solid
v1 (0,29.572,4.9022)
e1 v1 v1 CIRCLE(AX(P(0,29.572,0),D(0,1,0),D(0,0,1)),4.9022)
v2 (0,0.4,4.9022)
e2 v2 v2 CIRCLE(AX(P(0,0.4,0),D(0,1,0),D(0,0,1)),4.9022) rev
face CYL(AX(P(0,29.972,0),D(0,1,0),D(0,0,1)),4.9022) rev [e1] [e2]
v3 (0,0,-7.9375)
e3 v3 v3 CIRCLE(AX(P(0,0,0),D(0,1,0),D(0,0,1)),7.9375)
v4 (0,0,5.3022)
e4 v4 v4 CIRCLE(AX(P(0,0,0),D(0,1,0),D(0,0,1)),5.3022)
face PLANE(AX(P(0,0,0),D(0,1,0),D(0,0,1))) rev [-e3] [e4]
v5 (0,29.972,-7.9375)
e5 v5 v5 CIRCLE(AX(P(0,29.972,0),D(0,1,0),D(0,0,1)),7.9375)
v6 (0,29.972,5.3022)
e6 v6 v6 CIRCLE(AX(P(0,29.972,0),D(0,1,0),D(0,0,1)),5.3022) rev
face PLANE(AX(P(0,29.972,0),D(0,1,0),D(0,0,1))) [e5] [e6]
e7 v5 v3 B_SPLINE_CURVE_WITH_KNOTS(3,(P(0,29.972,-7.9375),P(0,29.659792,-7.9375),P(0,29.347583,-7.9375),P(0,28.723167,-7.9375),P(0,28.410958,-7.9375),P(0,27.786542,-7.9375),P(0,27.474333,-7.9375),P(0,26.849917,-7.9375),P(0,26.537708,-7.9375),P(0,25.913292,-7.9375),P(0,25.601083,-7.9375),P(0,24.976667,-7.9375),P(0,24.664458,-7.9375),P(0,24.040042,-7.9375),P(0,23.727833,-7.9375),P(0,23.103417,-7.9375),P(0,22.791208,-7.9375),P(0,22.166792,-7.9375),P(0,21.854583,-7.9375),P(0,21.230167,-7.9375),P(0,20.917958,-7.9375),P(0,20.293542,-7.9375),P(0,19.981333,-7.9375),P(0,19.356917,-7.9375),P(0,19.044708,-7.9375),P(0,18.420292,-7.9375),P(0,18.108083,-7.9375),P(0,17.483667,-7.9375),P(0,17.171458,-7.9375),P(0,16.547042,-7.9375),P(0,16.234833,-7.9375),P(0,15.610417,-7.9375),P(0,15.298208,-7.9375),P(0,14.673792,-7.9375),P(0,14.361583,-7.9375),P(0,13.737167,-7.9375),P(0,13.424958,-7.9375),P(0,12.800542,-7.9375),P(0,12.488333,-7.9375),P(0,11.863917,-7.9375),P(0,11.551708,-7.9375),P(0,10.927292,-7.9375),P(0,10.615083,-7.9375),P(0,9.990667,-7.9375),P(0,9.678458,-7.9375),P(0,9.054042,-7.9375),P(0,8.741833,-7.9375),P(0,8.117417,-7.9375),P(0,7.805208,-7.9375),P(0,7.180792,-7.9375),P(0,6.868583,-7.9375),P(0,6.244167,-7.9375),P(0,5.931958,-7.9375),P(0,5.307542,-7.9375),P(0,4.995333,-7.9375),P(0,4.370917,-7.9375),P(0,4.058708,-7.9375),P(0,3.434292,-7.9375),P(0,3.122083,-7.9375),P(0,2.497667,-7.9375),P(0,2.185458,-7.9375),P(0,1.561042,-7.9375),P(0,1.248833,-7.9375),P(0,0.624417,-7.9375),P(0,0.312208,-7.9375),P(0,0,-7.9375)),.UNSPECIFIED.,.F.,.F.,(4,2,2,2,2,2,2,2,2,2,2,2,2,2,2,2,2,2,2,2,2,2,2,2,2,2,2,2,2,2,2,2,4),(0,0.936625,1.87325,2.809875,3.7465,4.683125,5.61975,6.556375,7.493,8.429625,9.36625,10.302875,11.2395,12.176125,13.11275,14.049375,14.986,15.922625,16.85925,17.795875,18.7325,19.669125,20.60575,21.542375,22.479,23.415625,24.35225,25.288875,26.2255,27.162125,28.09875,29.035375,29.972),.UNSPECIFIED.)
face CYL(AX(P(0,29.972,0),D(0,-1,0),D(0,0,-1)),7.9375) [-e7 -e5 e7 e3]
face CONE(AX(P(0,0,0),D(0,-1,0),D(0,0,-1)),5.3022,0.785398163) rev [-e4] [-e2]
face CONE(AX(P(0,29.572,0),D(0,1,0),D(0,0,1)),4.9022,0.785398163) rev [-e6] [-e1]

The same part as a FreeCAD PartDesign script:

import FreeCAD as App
import Part
import Sketcher

V = App.Vector
Q = App.Units.Quantity


def edges_at(feature, points):
    """Names of the edges that pass closest to the given points."""
    edges = feature.Shape.Edges
    near = lambda p: min(range(len(edges)), key=lambda i: edges[i].distToShape(Part.Vertex(*p))[0])
    return sorted({f"Edge{near(p) + 1}" for p in points})

doc = App.newDocument("Part")
body = doc.addObject("PartDesign::Body", "Body")

# Sketch on XZ plane
sketch1 = doc.addObject("Sketcher::SketchObject", "Sketch")
body.addObject(sketch1)
sketch1.AttachmentSupport = (doc.XZ_Plane, [""])
sketch1.MapMode = "FlatFace"
sketch1.addGeometry(Part.Circle(V(0, 0, 0), V(0, 0, 1), 8), False)
sketch1.addConstraint([
    Sketcher.Constraint("Coincident", 0, 3, -1, 1),
    Sketcher.Constraint("Diameter", 0, Q("0.625 in")),
])
pad1 = doc.addObject("PartDesign::Pad", "Pad")
body.addObject(pad1)
pad1.Profile = sketch1
pad1.Length = Q("1.18 in")
pad1.Reversed = True

# Sketch on XZ plane
sketch2 = doc.addObject("Sketcher::SketchObject", "Sketch001")
body.addObject(sketch2)
sketch2.AttachmentSupport = (doc.XZ_Plane, [""])
sketch2.MapMode = "FlatFace"
sketch2.AttachmentOffset = App.Placement(V(0, 0, -1.18 * 25.4), App.Rotation())
sketch2.addGeometry(Part.Circle(V(0, 0, 0), V(0, 0, 1), 4.9), False)
sketch2.addConstraint([
    Sketcher.Constraint("Coincident", 0, 3, -1, 1),
    Sketcher.Constraint("Diameter", 0, Q("0.386 in")),
])
doc.recompute()
hole = doc.addObject("PartDesign::Hole", "Hole")
body.addObject(hole)
hole.Profile = sketch2
hole.ThreadType = "None"
hole.Diameter = Q("0.386 in")
hole.DepthType = "ThroughAll"
hole.Reversed = True
doc.recompute()

chamfer = doc.addObject("PartDesign::Chamfer", "Chamfer")
body.addObject(chamfer)
chamfer.Base = (hole, edges_at(hole, [(4.902, 29.972, 0), (4.902, 0, 0)]))
chamfer.Size = 0.4

doc.recompute()
